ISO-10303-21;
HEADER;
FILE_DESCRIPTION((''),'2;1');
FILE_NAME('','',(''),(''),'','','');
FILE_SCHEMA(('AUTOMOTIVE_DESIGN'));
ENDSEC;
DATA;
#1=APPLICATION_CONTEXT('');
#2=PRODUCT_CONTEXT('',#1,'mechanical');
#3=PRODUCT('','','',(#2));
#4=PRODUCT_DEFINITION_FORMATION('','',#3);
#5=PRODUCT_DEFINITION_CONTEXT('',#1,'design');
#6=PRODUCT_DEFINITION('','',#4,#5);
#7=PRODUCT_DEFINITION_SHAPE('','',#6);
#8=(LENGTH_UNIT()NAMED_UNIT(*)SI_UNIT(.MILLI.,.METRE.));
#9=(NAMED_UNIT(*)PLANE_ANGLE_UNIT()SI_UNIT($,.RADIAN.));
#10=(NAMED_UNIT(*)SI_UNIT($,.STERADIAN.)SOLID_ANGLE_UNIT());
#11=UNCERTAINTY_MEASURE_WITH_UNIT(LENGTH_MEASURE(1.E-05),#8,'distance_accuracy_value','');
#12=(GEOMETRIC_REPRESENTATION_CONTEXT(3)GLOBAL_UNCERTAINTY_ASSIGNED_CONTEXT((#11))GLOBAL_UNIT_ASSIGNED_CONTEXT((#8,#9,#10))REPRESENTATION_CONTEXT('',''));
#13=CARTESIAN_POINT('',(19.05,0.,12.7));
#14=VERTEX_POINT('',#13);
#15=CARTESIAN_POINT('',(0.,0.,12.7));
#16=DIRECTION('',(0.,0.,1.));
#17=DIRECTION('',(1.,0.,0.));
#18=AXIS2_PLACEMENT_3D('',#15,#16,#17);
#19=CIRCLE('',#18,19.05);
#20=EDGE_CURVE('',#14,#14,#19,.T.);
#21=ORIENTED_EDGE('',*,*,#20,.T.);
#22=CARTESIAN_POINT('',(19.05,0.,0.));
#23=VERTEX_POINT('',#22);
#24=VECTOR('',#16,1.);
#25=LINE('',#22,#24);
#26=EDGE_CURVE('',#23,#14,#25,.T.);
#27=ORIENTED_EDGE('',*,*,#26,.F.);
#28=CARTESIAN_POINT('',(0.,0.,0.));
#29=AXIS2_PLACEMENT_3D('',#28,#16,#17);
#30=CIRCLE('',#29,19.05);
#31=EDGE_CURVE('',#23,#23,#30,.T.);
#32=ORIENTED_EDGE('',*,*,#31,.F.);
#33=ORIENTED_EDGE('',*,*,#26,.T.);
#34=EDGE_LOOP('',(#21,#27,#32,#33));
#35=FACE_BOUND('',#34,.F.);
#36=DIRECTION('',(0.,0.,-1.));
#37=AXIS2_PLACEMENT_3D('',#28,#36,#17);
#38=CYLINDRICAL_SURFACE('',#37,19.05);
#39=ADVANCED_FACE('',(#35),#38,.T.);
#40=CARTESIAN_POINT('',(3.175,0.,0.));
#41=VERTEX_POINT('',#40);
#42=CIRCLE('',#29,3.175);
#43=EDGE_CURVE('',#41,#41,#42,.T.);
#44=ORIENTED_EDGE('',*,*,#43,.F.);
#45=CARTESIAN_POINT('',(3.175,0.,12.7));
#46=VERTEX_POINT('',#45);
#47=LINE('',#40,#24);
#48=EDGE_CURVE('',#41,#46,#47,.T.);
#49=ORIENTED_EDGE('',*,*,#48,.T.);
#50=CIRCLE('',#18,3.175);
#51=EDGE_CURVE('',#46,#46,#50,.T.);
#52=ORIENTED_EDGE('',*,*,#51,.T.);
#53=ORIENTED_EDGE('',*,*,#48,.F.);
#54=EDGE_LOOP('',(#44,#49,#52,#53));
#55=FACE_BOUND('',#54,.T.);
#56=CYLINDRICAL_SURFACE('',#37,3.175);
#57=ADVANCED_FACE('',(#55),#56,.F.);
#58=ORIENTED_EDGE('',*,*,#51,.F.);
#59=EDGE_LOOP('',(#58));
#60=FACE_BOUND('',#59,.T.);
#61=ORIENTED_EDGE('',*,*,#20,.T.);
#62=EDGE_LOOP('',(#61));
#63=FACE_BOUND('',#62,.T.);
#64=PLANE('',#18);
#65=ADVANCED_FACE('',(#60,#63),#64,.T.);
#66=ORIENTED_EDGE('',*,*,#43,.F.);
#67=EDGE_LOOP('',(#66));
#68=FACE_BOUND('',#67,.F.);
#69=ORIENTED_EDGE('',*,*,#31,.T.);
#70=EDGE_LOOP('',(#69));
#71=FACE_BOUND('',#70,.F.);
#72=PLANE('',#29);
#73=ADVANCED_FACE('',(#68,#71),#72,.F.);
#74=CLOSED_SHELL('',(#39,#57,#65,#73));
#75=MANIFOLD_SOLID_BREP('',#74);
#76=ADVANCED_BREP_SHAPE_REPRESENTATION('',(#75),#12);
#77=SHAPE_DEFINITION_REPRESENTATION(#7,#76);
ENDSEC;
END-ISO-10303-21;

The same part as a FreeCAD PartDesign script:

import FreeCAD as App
import Part
import Sketcher

V = App.Vector
Q = App.Units.Quantity

doc = App.newDocument("Part")
params = doc.addObject("Spreadsheet::Sheet", "Params")
for row, (alias, value) in enumerate([
    ("sketch1_diameter", "1.5 in"),
    ("sketch1_diameter2", "0.25 in"),
    ("pad1_length", "0.5 in"),
], start=1):
    params.set(f"A{row}", alias)
    params.set(f"B{row}", "=" + value)
    params.setAlias(f"B{row}", alias)

body = doc.addObject("PartDesign::Body", "Body")

sketch1 = body.newObject("Sketcher::SketchObject", "Sketch")
sketch1.AttachmentSupport = (doc.getObject("XY_Plane"), [""])
sketch1.MapMode = "FlatFace"
sketch1.addGeometry([
    Part.Circle(V(0, 0, 0), V(0, 0, 1), 19.1),
    Part.Circle(V(0, 0, 0), V(0, 0, 1), 3.2),
], False)
sketch1.addConstraint([
    Sketcher.Constraint("Coincident", 0, 3, -1, 1),
    Sketcher.Constraint("Coincident", 1, 3, -1, 1),
    Sketcher.Constraint("Diameter", 0, Q("1.5 in")),
    Sketcher.Constraint("Diameter", 1, Q("0.25 in")),
])
sketch1.setExpression("Constraints[2]", "Params.sketch1_diameter")
sketch1.setExpression("Constraints[3]", "Params.sketch1_diameter2")
pad1 = body.newObject("PartDesign::Pad", "Pad")
pad1.Profile = sketch1
pad1.setExpression("Length", "Params.pad1_length")

doc.recompute()
